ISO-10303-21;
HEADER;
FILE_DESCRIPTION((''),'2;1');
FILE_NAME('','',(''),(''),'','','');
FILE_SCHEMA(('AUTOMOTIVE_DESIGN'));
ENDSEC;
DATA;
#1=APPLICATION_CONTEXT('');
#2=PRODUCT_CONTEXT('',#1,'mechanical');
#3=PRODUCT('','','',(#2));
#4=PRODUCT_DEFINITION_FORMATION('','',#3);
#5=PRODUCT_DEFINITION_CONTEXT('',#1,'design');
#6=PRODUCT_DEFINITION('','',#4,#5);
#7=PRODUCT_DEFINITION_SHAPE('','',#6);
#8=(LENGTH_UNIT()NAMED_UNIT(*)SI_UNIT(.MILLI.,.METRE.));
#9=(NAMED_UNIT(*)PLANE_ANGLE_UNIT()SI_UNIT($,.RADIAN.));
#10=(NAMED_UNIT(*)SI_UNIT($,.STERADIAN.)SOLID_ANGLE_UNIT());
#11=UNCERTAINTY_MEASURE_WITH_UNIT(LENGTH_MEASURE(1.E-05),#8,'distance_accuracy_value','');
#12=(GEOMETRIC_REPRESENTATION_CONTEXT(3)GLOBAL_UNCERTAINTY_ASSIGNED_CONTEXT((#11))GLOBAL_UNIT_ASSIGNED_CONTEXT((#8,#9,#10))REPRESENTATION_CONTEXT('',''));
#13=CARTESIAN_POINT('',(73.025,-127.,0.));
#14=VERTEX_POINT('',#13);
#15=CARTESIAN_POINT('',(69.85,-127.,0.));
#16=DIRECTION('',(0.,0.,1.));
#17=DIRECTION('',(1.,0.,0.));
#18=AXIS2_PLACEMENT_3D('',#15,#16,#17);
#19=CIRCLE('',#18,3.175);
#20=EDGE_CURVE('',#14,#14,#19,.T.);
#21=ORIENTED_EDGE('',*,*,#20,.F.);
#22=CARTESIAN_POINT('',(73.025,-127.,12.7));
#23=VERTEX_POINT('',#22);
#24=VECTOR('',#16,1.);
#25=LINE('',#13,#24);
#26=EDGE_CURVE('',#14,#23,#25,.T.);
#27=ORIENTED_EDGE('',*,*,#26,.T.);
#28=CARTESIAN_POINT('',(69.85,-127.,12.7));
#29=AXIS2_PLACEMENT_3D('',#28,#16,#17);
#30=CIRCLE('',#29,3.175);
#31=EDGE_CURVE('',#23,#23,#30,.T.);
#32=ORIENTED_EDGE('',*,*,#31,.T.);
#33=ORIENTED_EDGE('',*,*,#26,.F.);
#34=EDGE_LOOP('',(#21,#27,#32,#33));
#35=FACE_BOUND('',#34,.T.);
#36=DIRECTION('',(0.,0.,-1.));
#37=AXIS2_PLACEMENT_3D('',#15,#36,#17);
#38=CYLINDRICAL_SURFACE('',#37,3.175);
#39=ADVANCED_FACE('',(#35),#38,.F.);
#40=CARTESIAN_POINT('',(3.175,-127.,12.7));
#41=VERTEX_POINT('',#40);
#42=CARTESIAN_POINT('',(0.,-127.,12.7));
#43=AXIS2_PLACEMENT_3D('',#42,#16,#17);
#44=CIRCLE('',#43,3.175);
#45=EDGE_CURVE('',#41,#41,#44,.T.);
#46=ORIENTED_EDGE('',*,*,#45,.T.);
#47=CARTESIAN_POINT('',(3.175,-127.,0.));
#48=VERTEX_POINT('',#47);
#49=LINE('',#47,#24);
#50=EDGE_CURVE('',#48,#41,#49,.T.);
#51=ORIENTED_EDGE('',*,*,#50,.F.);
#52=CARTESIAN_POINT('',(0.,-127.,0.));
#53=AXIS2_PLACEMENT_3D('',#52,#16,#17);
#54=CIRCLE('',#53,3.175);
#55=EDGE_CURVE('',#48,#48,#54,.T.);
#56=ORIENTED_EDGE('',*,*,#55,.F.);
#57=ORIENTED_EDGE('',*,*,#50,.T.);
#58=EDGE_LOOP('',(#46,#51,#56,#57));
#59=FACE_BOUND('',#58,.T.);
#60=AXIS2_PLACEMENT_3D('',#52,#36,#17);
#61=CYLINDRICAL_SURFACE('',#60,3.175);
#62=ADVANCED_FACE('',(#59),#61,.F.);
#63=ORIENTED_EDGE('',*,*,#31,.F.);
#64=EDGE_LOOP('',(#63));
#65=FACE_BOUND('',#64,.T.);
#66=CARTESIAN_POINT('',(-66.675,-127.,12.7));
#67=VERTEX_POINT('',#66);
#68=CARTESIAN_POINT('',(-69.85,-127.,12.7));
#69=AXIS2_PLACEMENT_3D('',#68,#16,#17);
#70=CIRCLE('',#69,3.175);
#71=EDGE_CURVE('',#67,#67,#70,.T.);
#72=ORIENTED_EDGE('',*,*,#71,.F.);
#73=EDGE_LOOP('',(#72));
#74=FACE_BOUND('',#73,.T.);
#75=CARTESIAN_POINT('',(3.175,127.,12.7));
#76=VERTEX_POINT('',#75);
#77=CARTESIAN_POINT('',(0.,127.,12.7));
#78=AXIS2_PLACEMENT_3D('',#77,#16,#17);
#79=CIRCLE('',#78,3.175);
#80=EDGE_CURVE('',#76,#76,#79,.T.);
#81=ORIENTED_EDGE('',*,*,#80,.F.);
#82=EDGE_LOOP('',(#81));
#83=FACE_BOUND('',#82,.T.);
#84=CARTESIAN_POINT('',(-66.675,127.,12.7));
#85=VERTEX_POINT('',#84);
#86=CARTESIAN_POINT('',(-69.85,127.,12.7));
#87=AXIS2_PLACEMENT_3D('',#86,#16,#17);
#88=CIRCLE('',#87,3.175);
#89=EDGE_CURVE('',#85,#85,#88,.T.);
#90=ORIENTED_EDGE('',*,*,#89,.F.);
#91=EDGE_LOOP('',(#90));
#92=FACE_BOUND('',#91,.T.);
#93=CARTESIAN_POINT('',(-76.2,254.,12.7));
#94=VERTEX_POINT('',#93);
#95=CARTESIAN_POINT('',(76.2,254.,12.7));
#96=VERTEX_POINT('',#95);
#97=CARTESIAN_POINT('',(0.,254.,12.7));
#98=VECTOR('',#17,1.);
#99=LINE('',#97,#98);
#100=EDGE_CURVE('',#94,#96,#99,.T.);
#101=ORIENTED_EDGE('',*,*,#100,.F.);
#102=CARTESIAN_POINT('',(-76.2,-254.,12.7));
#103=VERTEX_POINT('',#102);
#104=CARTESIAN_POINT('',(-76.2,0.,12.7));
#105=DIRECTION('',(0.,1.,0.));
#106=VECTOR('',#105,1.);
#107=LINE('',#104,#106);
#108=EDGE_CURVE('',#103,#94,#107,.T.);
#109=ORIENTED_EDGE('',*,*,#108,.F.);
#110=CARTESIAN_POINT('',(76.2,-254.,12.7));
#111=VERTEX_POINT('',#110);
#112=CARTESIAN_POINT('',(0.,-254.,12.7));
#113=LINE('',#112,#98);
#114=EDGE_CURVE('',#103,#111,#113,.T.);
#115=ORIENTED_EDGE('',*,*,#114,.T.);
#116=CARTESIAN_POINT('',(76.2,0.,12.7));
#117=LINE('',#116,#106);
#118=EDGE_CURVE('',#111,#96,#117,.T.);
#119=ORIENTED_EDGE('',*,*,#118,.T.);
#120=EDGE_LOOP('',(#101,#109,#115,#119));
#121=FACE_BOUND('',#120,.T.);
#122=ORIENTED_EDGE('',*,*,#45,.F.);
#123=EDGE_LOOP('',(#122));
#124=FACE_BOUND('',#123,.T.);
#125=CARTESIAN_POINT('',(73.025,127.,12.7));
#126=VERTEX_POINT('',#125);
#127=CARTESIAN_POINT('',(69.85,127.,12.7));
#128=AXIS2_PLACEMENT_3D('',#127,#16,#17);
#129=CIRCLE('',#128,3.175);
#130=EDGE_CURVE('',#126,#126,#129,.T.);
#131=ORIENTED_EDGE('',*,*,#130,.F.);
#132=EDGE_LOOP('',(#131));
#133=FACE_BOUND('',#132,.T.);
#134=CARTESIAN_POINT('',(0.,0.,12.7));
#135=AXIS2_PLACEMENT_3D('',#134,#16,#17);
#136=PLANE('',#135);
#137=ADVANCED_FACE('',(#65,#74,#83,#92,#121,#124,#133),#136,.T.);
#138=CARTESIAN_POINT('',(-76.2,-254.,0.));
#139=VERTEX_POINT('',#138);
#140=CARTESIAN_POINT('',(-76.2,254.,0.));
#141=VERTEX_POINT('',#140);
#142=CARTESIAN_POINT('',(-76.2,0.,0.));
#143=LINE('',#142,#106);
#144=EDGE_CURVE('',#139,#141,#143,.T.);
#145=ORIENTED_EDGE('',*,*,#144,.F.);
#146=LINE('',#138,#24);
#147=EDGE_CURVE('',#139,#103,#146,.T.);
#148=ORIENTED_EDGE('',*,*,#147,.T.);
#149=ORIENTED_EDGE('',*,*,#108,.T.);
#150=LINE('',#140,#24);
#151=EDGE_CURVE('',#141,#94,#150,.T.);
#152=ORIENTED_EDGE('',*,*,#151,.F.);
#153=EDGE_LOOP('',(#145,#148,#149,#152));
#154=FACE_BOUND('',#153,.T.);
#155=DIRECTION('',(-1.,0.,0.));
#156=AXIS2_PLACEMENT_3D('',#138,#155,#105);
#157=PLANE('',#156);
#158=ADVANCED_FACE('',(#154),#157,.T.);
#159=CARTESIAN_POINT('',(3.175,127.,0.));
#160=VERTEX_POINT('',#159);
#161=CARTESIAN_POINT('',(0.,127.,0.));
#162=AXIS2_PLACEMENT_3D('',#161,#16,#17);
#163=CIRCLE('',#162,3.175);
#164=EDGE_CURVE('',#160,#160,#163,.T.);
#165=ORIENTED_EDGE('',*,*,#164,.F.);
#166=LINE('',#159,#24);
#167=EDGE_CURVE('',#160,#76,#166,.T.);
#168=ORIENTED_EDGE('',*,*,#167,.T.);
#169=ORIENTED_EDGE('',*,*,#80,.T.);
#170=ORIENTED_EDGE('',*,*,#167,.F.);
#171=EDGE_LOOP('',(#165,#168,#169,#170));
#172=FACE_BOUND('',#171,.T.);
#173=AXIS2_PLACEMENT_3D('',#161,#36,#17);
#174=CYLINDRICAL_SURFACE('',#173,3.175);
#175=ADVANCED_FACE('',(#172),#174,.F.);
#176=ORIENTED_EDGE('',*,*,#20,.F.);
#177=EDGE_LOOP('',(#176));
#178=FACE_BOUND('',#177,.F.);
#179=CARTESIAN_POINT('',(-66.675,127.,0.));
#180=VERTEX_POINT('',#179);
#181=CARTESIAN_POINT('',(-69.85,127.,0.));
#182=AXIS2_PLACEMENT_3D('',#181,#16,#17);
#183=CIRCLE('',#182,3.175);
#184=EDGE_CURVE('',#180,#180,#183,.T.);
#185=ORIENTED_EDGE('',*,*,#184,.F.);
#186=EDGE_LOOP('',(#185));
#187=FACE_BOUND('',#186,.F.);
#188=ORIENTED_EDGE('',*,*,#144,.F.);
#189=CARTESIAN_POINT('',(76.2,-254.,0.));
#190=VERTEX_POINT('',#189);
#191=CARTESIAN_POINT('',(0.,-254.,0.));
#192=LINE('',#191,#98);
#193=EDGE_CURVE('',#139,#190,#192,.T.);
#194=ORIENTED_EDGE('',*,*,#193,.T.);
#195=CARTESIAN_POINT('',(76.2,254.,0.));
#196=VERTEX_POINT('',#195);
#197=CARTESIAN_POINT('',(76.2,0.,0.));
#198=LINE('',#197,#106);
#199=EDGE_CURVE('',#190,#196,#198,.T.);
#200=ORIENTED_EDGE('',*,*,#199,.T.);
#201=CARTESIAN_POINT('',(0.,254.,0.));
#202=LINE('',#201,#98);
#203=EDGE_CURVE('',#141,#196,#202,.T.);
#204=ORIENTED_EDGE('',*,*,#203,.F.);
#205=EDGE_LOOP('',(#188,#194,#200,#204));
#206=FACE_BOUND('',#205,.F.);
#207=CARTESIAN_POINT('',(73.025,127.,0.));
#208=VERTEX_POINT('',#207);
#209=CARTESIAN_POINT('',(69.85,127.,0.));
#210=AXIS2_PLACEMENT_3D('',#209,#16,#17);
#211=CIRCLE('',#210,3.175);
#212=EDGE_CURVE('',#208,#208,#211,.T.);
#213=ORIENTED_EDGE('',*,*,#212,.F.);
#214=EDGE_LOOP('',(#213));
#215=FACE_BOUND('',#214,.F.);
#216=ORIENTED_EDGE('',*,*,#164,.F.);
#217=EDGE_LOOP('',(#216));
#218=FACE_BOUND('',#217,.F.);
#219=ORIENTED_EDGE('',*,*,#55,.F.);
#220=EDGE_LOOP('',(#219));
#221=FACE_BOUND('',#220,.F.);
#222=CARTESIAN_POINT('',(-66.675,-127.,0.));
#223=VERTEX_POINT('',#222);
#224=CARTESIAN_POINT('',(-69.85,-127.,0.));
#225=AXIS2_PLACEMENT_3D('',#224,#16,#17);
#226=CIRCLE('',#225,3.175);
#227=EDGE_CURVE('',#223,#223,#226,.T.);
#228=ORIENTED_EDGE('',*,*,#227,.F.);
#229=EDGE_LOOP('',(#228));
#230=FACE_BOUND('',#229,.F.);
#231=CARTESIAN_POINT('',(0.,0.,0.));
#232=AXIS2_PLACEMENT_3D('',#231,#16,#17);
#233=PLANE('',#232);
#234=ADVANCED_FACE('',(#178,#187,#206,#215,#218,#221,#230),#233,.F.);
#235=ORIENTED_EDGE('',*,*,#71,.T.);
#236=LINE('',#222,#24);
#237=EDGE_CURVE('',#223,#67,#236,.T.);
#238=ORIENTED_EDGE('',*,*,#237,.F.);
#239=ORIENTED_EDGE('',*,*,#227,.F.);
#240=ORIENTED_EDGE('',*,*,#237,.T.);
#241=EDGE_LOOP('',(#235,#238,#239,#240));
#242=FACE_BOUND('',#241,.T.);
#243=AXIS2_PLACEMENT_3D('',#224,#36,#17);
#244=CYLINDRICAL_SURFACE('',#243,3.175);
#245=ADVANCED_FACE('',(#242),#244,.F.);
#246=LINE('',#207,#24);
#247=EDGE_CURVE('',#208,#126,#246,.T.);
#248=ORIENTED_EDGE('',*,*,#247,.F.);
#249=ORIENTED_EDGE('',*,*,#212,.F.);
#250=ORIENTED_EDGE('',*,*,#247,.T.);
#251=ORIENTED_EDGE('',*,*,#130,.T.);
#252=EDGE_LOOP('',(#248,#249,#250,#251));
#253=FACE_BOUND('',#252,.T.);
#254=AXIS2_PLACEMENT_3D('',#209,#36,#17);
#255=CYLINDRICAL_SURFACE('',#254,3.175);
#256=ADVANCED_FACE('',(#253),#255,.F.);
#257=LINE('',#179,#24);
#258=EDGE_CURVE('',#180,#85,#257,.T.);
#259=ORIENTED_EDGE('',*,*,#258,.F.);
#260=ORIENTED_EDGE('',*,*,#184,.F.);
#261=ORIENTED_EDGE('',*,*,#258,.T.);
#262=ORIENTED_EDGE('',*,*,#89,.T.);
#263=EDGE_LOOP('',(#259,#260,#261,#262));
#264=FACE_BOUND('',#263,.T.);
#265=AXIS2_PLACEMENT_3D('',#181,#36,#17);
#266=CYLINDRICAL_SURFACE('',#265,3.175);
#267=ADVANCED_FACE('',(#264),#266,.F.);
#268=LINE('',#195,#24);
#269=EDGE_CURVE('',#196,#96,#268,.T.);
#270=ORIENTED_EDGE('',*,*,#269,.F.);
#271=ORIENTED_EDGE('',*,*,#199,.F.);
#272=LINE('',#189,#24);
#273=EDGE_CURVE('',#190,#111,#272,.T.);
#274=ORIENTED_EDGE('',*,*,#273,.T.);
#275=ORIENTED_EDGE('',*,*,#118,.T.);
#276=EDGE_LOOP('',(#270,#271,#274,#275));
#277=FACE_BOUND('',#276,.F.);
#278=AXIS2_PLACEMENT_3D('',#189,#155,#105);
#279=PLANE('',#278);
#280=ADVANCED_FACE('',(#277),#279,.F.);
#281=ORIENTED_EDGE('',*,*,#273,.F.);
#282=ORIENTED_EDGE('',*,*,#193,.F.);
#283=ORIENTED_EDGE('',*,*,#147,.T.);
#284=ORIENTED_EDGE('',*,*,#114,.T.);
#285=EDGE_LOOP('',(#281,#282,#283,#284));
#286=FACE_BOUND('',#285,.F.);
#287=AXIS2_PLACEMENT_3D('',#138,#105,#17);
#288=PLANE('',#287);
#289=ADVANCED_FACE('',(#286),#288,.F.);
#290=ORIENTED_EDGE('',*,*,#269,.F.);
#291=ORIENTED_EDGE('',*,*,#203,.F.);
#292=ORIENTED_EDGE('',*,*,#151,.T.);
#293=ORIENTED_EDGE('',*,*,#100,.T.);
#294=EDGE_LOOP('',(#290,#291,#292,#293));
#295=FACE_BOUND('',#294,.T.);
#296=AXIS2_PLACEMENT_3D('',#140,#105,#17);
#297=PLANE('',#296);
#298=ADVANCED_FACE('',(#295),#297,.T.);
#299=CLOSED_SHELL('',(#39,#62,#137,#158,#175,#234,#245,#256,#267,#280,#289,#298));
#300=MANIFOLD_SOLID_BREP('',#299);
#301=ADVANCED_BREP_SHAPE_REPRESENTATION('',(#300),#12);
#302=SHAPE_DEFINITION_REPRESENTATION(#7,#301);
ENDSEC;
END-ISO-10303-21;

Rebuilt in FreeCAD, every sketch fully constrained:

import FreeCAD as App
import Part
import Sketcher
from FreeCAD import Vector
Q = App.Units.Quantity


def add_polygon(sketch, points):
    """Adds a closed chain of lines whose ends are joined by coincident constraints."""
    first, n = sketch.GeometryCount, len(points)
    for a, b in zip(points, points[1:] + points[:1]):
        sketch.addGeometry(Part.LineSegment(App.Vector(*a, 0), App.Vector(*b, 0)), False)
    for i in range(n):
        sketch.addConstraint(Sketcher.Constraint("Coincident", first + i, 2, first + (i + 1) % n, 1))

doc = App.newDocument("Part")
body = doc.addObject("PartDesign::Body", "Body")

# Sketch on XY plane
sketch1 = body.newObject("Sketcher::SketchObject", "Sketch")
sketch1.AttachmentSupport = (doc.getObject("XY_Plane"), [""])
sketch1.MapMode = "FlatFace"
add_polygon(sketch1, [(-76.2, 254), (-76.2, -254), (76.2, -254), (76.2, 254)])  # lines 0-3
sketch1.addConstraint(Sketcher.Constraint("Vertical", 0))
sketch1.addConstraint(Sketcher.Constraint("Horizontal", 1))
sketch1.addConstraint(Sketcher.Constraint("Vertical", 2))
sketch1.addConstraint(Sketcher.Constraint("Horizontal", 3))
sketch1.addConstraint(Sketcher.Constraint("Symmetric", 0, 2, 2, 2, -1, 1))
sketch1.addConstraint(Sketcher.Constraint("DistanceX", 1, 1, 1, 2, Q("6 in")))
sketch1.addConstraint(Sketcher.Constraint("DistanceY", 0, 2, 0, 1, Q("20 in")))
pad1 = body.newObject("PartDesign::Pad", "Pad")
pad1.Profile = sketch1
pad1.Length = Q("0.5 in")

# Sketch on XY plane
sketch2 = body.newObject("Sketcher::SketchObject", "Sketch001")
sketch2.AttachmentSupport = (doc.getObject("XY_Plane"), [""])
sketch2.MapMode = "FlatFace"
sketch2.addGeometry(Part.Circle(Vector(-69.85, 127, 0), Vector(0, 0, 1), 3.175), False)
sketch2.addGeometry(Part.Circle(Vector(69.85, 127, 0), Vector(0, 0, 1), 3.175), False)
sketch2.addGeometry(Part.Circle(Vector(69.85, -127, 0), Vector(0, 0, 1), 3.175), False)
sketch2.addGeometry(Part.Circle(Vector(-69.85, -127, 0), Vector(0, 0, 1), 3.175), False)
sketch2.addGeometry(Part.Circle(Vector(0, 127, 0), Vector(0, 0, 1), 3.175), False)
sketch2.addGeometry(Part.Circle(Vector(0, -127, 0), Vector(0, 0, 1), 3.175), False)
sketch2.addConstraint(Sketcher.Constraint("Equal", 0, 1))
sketch2.addConstraint(Sketcher.Constraint("Equal", 1, 2))
sketch2.addConstraint(Sketcher.Constraint("Equal", 2, 3))
sketch2.addConstraint(Sketcher.Constraint("Equal", 3, 4))
sketch2.addConstraint(Sketcher.Constraint("Equal", 4, 5))
sketch2.addConstraint(Sketcher.Constraint("Symmetric", 0, 3, 2, 3, -1, 1))
sketch2.addConstraint(Sketcher.Constraint("Symmetric", 1, 3, 3, 3, -1, 1))
sketch2.addConstraint(Sketcher.Constraint("Symmetric", 4, 3, 5, 3, -1, 1))
sketch2.addConstraint(Sketcher.Constraint("Symmetric", 0, 3, 1, 3, -2))
sketch2.addConstraint(Sketcher.Constraint("PointOnObject", 4, 3, -2))
sketch2.addConstraint(Sketcher.Constraint("Horizontal", 1, 3, 4, 3))
sketch2.addConstraint(Sketcher.Constraint("Diameter", 0, Q("0.25 in")))
sketch2.addConstraint(Sketcher.Constraint("DistanceY", -1, 1, 0, 3, Q("5 in")))
sketch2.addConstraint(Sketcher.Constraint("DistanceX", 0, 3, 1, 3, Q("5.5 in")))
pocket1 = body.newObject("PartDesign::Pocket", "Pocket")
pocket1.Profile = sketch2
pocket1.Type = "ThroughAll"
pocket1.Reversed = True

doc.recompute()
